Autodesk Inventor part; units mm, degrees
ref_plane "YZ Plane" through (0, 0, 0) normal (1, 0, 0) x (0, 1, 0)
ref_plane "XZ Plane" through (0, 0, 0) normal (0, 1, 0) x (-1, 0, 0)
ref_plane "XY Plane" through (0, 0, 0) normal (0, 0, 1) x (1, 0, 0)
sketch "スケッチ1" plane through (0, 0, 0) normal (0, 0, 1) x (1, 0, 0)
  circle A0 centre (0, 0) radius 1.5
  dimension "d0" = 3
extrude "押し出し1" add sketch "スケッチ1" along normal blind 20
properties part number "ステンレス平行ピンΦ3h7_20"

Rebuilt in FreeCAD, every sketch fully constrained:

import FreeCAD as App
import Part
import Sketcher

doc = App.newDocument("Part")
body = doc.addObject("PartDesign::Body", "Body")

# Sketch on XY plane
sketch1 = body.newObject("Sketcher::SketchObject", "Sketch")
sketch1.AttachmentSupport = (doc.getObject("XY_Plane"), [""])
sketch1.MapMode = "FlatFace"
sketch1.addGeometry(Part.Circle(App.Vector(0, 0, 0), App.Vector(0, 0, 1), 1.5), False)
sketch1.addConstraint([
    Sketcher.Constraint("Coincident", 0, 3, -1, 1),
    Sketcher.Constraint("Diameter", 0, 3.0),
])
pad1 = body.newObject("PartDesign::Pad", "Pad")
pad1.Profile = sketch1
pad1.Length = 20

doc.recompute()
